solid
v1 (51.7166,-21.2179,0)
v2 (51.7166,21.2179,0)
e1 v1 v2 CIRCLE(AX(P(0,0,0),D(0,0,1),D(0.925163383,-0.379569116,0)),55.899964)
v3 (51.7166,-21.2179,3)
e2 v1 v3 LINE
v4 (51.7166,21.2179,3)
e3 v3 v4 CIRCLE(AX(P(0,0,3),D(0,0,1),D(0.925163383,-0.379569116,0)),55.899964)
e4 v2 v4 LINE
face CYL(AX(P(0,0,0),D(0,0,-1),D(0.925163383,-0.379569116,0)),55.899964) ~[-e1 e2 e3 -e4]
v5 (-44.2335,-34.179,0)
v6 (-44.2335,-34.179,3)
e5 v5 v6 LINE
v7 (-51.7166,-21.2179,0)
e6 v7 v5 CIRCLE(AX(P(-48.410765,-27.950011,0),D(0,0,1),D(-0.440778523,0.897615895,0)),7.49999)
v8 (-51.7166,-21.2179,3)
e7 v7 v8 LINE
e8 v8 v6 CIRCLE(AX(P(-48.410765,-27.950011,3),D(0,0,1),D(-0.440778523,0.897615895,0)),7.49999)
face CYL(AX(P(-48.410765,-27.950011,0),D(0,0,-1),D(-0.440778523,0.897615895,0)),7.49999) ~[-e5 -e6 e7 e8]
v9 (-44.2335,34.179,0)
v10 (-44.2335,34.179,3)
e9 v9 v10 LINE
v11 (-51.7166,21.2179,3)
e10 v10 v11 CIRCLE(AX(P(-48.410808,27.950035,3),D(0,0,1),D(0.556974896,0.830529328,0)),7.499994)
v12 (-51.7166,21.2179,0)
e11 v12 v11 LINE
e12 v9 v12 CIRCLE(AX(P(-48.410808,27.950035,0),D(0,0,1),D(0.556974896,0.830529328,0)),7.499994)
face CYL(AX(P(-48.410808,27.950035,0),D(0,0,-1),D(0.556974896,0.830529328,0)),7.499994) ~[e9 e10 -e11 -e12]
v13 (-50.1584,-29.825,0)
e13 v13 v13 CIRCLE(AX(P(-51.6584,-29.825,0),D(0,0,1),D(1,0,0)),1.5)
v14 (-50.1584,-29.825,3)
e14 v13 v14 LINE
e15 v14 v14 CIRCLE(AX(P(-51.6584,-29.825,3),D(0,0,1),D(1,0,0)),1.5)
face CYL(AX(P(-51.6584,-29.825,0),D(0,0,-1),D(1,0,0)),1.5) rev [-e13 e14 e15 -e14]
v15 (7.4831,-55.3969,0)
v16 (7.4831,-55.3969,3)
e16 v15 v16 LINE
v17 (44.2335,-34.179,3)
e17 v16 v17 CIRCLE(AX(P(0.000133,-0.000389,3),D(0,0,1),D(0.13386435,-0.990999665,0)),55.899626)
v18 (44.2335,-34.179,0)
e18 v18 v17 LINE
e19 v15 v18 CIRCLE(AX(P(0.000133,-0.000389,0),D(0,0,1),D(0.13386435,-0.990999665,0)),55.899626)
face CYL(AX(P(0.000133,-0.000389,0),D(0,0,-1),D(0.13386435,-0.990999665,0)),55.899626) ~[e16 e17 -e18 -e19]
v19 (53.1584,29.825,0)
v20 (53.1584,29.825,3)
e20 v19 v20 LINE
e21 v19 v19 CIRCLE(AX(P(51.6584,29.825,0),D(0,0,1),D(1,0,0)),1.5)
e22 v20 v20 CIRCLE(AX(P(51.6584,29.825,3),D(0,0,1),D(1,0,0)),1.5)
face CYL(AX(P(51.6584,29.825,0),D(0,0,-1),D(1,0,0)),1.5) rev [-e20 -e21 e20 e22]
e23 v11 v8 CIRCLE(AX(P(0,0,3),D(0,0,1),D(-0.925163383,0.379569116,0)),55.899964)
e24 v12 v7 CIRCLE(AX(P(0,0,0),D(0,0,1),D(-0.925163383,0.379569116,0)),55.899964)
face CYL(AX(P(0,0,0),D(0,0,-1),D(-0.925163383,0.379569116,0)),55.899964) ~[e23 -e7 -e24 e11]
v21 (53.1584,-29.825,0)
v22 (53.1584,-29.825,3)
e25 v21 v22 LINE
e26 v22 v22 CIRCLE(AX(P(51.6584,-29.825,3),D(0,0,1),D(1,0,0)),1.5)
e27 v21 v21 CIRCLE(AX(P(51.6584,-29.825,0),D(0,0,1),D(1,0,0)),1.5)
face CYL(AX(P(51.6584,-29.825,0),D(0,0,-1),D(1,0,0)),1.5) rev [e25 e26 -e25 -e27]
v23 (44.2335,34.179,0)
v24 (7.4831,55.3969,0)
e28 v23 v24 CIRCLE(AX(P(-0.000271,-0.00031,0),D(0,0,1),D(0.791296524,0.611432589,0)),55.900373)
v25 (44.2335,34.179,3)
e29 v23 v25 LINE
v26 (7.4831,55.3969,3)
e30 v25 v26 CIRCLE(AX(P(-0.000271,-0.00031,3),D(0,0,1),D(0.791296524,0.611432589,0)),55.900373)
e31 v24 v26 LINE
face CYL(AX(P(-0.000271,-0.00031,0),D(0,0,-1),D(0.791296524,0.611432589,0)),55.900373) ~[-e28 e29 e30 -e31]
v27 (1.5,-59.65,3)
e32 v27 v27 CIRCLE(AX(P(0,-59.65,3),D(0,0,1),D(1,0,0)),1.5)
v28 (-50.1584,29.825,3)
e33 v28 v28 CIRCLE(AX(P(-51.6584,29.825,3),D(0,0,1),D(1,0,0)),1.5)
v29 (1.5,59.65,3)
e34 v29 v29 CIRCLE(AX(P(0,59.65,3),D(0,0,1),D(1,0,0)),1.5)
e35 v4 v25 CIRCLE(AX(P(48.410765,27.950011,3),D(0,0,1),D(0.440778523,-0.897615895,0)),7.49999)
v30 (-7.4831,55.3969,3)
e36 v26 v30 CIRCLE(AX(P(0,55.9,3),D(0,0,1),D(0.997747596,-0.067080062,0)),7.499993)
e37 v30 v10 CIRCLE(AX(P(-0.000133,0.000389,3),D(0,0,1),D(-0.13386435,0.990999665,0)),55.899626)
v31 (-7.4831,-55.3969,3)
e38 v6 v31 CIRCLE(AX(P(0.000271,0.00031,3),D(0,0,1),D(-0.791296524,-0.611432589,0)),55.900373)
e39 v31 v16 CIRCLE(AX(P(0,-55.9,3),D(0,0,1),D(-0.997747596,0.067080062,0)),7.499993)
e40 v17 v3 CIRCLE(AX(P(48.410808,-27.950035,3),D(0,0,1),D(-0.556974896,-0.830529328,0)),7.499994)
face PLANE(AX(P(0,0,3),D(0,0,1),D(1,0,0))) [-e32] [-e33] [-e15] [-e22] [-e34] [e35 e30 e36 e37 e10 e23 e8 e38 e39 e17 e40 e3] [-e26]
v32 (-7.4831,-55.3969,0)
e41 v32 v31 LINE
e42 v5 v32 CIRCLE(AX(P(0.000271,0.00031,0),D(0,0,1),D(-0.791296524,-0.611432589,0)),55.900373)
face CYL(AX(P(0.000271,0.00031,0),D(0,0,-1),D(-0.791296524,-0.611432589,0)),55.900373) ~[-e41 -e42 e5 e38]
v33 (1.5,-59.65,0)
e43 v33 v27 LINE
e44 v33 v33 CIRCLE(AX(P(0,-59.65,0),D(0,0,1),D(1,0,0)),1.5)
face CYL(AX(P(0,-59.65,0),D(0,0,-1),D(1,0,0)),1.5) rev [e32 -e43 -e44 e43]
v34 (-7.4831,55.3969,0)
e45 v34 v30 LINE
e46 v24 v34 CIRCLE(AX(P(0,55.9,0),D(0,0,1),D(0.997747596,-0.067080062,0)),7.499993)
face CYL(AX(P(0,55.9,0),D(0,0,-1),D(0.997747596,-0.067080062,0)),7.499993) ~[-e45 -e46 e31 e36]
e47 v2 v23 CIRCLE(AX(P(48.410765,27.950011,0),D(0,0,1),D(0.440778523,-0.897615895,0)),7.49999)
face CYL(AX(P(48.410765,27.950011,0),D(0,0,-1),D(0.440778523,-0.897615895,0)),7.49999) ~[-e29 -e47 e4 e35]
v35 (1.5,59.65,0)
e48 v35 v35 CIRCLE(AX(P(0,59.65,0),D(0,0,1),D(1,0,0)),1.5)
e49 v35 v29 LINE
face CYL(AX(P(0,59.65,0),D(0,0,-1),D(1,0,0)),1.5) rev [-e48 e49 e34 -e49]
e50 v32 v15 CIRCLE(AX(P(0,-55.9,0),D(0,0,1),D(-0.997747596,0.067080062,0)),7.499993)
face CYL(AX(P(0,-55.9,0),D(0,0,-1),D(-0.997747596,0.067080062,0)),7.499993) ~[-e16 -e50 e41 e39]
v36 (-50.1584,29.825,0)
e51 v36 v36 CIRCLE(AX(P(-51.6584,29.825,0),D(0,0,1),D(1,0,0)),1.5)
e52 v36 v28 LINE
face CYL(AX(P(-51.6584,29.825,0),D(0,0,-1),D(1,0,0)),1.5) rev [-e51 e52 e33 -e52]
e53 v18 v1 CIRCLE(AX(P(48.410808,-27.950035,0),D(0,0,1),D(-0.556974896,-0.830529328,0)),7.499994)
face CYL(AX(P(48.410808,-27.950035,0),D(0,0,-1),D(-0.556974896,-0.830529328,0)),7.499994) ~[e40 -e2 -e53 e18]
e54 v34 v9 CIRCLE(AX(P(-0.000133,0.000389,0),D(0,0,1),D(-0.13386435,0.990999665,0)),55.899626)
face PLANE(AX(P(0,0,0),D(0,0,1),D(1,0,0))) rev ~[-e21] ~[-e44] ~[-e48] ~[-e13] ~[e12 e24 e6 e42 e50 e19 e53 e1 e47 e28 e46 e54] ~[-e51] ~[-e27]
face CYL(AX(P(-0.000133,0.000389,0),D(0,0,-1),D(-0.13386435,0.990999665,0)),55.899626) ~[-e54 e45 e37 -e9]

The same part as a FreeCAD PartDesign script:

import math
import FreeCAD as App
import Part
import Sketcher

V = App.Vector

doc = App.newDocument("Part")
params = doc.addObject("Spreadsheet::Sheet", "Params")
for row, (alias, value) in enumerate([
    ("sketch1_diameter", "3 mm"),
    ("sketch1_radius", "55.9 mm"),
    ("sketch1_radius2", "7.5 mm"),
    ("pad1_length", "3 mm"),
], start=1):
    params.set(f"A{row}", alias)
    params.set(f"B{row}", "=" + value)
    params.setAlias(f"B{row}", alias)

body = doc.addObject("PartDesign::Body", "Body")

sketch1 = doc.addObject("Sketcher::SketchObject", "Sketch")
body.addObject(sketch1)
sketch1.AttachmentSupport = (doc.XY_Plane, [""])
sketch1.MapMode = "FlatFace"
sketch1.addGeometry(Part.ArcOfCircle(Part.Circle(V(0, 0, 0), V(0, 0, 1), 55.90003), math.radians(37.693079), math.radians(82.306963)), False)
sketch1.addGeometry(Part.ArcOfCircle(Part.Circle(V(0, 55.9, 0), V(0, 0, 1), 7.499993), math.radians(-3.846293), math.radians(183.846293)), False)
sketch1.addGeometry(Part.ArcOfCircle(Part.Circle(V(0, 0, 0), V(0, 0, 1), 55.899964), math.radians(97.693037), math.radians(142.306921)), False)
sketch1.addGeometry(Part.ArcOfCircle(Part.Circle(V(-48.4108, 27.95, 0), V(0, 0, 1), 7.500018), math.radians(56.153353), math.radians(243.846638)), False)
sketch1.addGeometry(Part.ArcOfCircle(Part.Circle(V(0, 0, 0), V(0, 0, 1), 55.899964), math.radians(157.693005), math.radians(202.306995)), False)
sketch1.addGeometry(Part.ArcOfCircle(Part.Circle(V(-48.4108, -27.95, 0), V(0, 0, 1), 7.499966), math.radians(116.153362), math.radians(303.846647)), False)
sketch1.addGeometry(Part.ArcOfCircle(Part.Circle(V(0, 0, 0), V(0, 0, 1), 55.90003), math.radians(-142.306921), math.radians(-97.693037)), False)
sketch1.addGeometry(Part.ArcOfCircle(Part.Circle(V(0, -55.9, 0), V(0, 0, 1), 7.499993), math.radians(176.153707), math.radians(363.846293)), False)
sketch1.addGeometry(Part.ArcOfCircle(Part.Circle(V(0, 0, 0), V(0, 0, 1), 55.899964), math.radians(-82.306963), math.radians(-37.693079)), False)
sketch1.addGeometry(Part.ArcOfCircle(Part.Circle(V(48.4108, -27.95, 0), V(0, 0, 1), 7.500018), math.radians(-123.846647), math.radians(63.846638)), False)
sketch1.addGeometry(Part.ArcOfCircle(Part.Circle(V(0, 0, 0), V(0, 0, 1), 55.899964), math.radians(-22.306995), math.radians(22.306995)), False)
sketch1.addGeometry(Part.ArcOfCircle(Part.Circle(V(48.4108, 27.95, 0), V(0, 0, 1), 7.499966), math.radians(-63.846638), math.radians(123.846647)), False)
sketch1.addGeometry(Part.Circle(V(-51.6584, -29.825, 0), V(0, 0, 1), 1.5), False)
sketch1.addGeometry(Part.Circle(V(0, -59.65, 0), V(0, 0, 1), 1.5), False)
sketch1.addGeometry(Part.Circle(V(51.6584, -29.825, 0), V(0, 0, 1), 1.5), False)
sketch1.addGeometry(Part.Circle(V(-51.6584, 29.825, 0), V(0, 0, 1), 1.5), False)
sketch1.addGeometry(Part.Circle(V(51.6584, 29.825, 0), V(0, 0, 1), 1.5), False)
sketch1.addGeometry(Part.Circle(V(0, 59.65, 0), V(0, 0, 1), 1.5), False)
sketch1.addConstraint(Sketcher.Constraint("Coincident", 0, 2, 1, 1))
sketch1.addConstraint(Sketcher.Constraint("Coincident", 1, 2, 2, 1))
sketch1.addConstraint(Sketcher.Constraint("Coincident", 2, 2, 3, 1))
sketch1.addConstraint(Sketcher.Constraint("Coincident", 3, 2, 4, 1))
sketch1.addConstraint(Sketcher.Constraint("Coincident", 4, 2, 5, 1))
sketch1.addConstraint(Sketcher.Constraint("Coincident", 5, 2, 6, 1))
sketch1.addConstraint(Sketcher.Constraint("Coincident", 6, 2, 7, 1))
sketch1.addConstraint(Sketcher.Constraint("Coincident", 7, 2, 8, 1))
sketch1.addConstraint(Sketcher.Constraint("Coincident", 8, 2, 9, 1))
sketch1.addConstraint(Sketcher.Constraint("Coincident", 9, 2, 10, 1))
sketch1.addConstraint(Sketcher.Constraint("Coincident", 10, 2, 11, 1))
sketch1.addConstraint(Sketcher.Constraint("Coincident", 11, 2, 0, 1))
sketch1.addConstraint(Sketcher.Constraint("Coincident", 0, 3, -1, 1))
sketch1.addConstraint(Sketcher.Constraint("Coincident", 2, 3, -1, 1))
sketch1.addConstraint(Sketcher.Constraint("Coincident", 4, 3, -1, 1))
sketch1.addConstraint(Sketcher.Constraint("Coincident", 6, 3, -1, 1))
sketch1.addConstraint(Sketcher.Constraint("Coincident", 8, 3, -1, 1))
sketch1.addConstraint(Sketcher.Constraint("Coincident", 10, 3, -1, 1))
sketch1.addConstraint(Sketcher.Constraint("Equal", 0, 2))
sketch1.addConstraint(Sketcher.Constraint("Equal", 1, 3))
sketch1.addConstraint(Sketcher.Constraint("Equal", 2, 4))
sketch1.addConstraint(Sketcher.Constraint("Equal", 3, 5))
sketch1.addConstraint(Sketcher.Constraint("Equal", 4, 6))
sketch1.addConstraint(Sketcher.Constraint("Equal", 5, 7))
sketch1.addConstraint(Sketcher.Constraint("Equal", 6, 8))
sketch1.addConstraint(Sketcher.Constraint("Equal", 7, 9))
sketch1.addConstraint(Sketcher.Constraint("Equal", 8, 10))
sketch1.addConstraint(Sketcher.Constraint("Equal", 9, 11))
sketch1.addConstraint(Sketcher.Constraint("Equal", 12, 13))
sketch1.addConstraint(Sketcher.Constraint("Equal", 13, 14))
sketch1.addConstraint(Sketcher.Constraint("Equal", 14, 15))
sketch1.addConstraint(Sketcher.Constraint("Equal", 15, 16))
sketch1.addConstraint(Sketcher.Constraint("Equal", 16, 17))
sketch1.addConstraint(Sketcher.Constraint("Symmetric", 1, 3, 7, 3, -1, 1))
sketch1.addConstraint(Sketcher.Constraint("Symmetric", 3, 3, 9, 3, -1, 1))
sketch1.addConstraint(Sketcher.Constraint("Symmetric", 5, 3, 11, 3, -1, 1))
sketch1.addConstraint(Sketcher.Constraint("Symmetric", 14, 3, 15, 3, -1, 1))
sketch1.addConstraint(Sketcher.Constraint("Symmetric", 12, 3, 16, 3, -1, 1))
sketch1.addConstraint(Sketcher.Constraint("Symmetric", 13, 3, 17, 3, -1, 1))
sketch1.addConstraint(Sketcher.Constraint("Symmetric", 5, 3, 9, 3, -2))
sketch1.addConstraint(Sketcher.Constraint("Symmetric", 12, 3, 14, 3, -2))
sketch1.addConstraint(Sketcher.Constraint("PointOnObject", 1, 3, -2))
sketch1.addConstraint(Sketcher.Constraint("PointOnObject", 13, 3, -2))
sketch1.addConstraint(Sketcher.Constraint("Diameter", 12, 3.0))
sketch1.addConstraint(Sketcher.Constraint("Radius", 0, 55.9))
sketch1.addConstraint(Sketcher.Constraint("DistanceY", -1, 1, 1, 3, 55.9))
sketch1.addConstraint(Sketcher.Constraint("Radius", 1, 7.5))
sketch1.addConstraint(Sketcher.Constraint("DistanceY", 5, 3, 3, 3, 55.9))
sketch1.addConstraint(Sketcher.Constraint("DistanceY", 13, 3, 5, 3, 31.7))
sketch1.addConstraint(Sketcher.Constraint("DistanceY", 12, 3, -1, 1, 29.825))
sketch1.addConstraint(Sketcher.Constraint("DistanceY", -1, 1, 2, 2, 34.179))
sketch1.addConstraint(Sketcher.Constraint("DistanceX", 15, 3, 2, 2, 7.425))
sketch1.setExpression("Constraints[43]", "Params.sketch1_diameter")
sketch1.setExpression("Constraints[44]", "Params.sketch1_radius")
sketch1.setExpression("Constraints[46]", "Params.sketch1_radius2")
pad1 = doc.addObject("PartDesign::Pad", "Pad")
body.addObject(pad1)
pad1.Profile = sketch1
pad1.setExpression("Length", "Params.pad1_length")

doc.recompute()
